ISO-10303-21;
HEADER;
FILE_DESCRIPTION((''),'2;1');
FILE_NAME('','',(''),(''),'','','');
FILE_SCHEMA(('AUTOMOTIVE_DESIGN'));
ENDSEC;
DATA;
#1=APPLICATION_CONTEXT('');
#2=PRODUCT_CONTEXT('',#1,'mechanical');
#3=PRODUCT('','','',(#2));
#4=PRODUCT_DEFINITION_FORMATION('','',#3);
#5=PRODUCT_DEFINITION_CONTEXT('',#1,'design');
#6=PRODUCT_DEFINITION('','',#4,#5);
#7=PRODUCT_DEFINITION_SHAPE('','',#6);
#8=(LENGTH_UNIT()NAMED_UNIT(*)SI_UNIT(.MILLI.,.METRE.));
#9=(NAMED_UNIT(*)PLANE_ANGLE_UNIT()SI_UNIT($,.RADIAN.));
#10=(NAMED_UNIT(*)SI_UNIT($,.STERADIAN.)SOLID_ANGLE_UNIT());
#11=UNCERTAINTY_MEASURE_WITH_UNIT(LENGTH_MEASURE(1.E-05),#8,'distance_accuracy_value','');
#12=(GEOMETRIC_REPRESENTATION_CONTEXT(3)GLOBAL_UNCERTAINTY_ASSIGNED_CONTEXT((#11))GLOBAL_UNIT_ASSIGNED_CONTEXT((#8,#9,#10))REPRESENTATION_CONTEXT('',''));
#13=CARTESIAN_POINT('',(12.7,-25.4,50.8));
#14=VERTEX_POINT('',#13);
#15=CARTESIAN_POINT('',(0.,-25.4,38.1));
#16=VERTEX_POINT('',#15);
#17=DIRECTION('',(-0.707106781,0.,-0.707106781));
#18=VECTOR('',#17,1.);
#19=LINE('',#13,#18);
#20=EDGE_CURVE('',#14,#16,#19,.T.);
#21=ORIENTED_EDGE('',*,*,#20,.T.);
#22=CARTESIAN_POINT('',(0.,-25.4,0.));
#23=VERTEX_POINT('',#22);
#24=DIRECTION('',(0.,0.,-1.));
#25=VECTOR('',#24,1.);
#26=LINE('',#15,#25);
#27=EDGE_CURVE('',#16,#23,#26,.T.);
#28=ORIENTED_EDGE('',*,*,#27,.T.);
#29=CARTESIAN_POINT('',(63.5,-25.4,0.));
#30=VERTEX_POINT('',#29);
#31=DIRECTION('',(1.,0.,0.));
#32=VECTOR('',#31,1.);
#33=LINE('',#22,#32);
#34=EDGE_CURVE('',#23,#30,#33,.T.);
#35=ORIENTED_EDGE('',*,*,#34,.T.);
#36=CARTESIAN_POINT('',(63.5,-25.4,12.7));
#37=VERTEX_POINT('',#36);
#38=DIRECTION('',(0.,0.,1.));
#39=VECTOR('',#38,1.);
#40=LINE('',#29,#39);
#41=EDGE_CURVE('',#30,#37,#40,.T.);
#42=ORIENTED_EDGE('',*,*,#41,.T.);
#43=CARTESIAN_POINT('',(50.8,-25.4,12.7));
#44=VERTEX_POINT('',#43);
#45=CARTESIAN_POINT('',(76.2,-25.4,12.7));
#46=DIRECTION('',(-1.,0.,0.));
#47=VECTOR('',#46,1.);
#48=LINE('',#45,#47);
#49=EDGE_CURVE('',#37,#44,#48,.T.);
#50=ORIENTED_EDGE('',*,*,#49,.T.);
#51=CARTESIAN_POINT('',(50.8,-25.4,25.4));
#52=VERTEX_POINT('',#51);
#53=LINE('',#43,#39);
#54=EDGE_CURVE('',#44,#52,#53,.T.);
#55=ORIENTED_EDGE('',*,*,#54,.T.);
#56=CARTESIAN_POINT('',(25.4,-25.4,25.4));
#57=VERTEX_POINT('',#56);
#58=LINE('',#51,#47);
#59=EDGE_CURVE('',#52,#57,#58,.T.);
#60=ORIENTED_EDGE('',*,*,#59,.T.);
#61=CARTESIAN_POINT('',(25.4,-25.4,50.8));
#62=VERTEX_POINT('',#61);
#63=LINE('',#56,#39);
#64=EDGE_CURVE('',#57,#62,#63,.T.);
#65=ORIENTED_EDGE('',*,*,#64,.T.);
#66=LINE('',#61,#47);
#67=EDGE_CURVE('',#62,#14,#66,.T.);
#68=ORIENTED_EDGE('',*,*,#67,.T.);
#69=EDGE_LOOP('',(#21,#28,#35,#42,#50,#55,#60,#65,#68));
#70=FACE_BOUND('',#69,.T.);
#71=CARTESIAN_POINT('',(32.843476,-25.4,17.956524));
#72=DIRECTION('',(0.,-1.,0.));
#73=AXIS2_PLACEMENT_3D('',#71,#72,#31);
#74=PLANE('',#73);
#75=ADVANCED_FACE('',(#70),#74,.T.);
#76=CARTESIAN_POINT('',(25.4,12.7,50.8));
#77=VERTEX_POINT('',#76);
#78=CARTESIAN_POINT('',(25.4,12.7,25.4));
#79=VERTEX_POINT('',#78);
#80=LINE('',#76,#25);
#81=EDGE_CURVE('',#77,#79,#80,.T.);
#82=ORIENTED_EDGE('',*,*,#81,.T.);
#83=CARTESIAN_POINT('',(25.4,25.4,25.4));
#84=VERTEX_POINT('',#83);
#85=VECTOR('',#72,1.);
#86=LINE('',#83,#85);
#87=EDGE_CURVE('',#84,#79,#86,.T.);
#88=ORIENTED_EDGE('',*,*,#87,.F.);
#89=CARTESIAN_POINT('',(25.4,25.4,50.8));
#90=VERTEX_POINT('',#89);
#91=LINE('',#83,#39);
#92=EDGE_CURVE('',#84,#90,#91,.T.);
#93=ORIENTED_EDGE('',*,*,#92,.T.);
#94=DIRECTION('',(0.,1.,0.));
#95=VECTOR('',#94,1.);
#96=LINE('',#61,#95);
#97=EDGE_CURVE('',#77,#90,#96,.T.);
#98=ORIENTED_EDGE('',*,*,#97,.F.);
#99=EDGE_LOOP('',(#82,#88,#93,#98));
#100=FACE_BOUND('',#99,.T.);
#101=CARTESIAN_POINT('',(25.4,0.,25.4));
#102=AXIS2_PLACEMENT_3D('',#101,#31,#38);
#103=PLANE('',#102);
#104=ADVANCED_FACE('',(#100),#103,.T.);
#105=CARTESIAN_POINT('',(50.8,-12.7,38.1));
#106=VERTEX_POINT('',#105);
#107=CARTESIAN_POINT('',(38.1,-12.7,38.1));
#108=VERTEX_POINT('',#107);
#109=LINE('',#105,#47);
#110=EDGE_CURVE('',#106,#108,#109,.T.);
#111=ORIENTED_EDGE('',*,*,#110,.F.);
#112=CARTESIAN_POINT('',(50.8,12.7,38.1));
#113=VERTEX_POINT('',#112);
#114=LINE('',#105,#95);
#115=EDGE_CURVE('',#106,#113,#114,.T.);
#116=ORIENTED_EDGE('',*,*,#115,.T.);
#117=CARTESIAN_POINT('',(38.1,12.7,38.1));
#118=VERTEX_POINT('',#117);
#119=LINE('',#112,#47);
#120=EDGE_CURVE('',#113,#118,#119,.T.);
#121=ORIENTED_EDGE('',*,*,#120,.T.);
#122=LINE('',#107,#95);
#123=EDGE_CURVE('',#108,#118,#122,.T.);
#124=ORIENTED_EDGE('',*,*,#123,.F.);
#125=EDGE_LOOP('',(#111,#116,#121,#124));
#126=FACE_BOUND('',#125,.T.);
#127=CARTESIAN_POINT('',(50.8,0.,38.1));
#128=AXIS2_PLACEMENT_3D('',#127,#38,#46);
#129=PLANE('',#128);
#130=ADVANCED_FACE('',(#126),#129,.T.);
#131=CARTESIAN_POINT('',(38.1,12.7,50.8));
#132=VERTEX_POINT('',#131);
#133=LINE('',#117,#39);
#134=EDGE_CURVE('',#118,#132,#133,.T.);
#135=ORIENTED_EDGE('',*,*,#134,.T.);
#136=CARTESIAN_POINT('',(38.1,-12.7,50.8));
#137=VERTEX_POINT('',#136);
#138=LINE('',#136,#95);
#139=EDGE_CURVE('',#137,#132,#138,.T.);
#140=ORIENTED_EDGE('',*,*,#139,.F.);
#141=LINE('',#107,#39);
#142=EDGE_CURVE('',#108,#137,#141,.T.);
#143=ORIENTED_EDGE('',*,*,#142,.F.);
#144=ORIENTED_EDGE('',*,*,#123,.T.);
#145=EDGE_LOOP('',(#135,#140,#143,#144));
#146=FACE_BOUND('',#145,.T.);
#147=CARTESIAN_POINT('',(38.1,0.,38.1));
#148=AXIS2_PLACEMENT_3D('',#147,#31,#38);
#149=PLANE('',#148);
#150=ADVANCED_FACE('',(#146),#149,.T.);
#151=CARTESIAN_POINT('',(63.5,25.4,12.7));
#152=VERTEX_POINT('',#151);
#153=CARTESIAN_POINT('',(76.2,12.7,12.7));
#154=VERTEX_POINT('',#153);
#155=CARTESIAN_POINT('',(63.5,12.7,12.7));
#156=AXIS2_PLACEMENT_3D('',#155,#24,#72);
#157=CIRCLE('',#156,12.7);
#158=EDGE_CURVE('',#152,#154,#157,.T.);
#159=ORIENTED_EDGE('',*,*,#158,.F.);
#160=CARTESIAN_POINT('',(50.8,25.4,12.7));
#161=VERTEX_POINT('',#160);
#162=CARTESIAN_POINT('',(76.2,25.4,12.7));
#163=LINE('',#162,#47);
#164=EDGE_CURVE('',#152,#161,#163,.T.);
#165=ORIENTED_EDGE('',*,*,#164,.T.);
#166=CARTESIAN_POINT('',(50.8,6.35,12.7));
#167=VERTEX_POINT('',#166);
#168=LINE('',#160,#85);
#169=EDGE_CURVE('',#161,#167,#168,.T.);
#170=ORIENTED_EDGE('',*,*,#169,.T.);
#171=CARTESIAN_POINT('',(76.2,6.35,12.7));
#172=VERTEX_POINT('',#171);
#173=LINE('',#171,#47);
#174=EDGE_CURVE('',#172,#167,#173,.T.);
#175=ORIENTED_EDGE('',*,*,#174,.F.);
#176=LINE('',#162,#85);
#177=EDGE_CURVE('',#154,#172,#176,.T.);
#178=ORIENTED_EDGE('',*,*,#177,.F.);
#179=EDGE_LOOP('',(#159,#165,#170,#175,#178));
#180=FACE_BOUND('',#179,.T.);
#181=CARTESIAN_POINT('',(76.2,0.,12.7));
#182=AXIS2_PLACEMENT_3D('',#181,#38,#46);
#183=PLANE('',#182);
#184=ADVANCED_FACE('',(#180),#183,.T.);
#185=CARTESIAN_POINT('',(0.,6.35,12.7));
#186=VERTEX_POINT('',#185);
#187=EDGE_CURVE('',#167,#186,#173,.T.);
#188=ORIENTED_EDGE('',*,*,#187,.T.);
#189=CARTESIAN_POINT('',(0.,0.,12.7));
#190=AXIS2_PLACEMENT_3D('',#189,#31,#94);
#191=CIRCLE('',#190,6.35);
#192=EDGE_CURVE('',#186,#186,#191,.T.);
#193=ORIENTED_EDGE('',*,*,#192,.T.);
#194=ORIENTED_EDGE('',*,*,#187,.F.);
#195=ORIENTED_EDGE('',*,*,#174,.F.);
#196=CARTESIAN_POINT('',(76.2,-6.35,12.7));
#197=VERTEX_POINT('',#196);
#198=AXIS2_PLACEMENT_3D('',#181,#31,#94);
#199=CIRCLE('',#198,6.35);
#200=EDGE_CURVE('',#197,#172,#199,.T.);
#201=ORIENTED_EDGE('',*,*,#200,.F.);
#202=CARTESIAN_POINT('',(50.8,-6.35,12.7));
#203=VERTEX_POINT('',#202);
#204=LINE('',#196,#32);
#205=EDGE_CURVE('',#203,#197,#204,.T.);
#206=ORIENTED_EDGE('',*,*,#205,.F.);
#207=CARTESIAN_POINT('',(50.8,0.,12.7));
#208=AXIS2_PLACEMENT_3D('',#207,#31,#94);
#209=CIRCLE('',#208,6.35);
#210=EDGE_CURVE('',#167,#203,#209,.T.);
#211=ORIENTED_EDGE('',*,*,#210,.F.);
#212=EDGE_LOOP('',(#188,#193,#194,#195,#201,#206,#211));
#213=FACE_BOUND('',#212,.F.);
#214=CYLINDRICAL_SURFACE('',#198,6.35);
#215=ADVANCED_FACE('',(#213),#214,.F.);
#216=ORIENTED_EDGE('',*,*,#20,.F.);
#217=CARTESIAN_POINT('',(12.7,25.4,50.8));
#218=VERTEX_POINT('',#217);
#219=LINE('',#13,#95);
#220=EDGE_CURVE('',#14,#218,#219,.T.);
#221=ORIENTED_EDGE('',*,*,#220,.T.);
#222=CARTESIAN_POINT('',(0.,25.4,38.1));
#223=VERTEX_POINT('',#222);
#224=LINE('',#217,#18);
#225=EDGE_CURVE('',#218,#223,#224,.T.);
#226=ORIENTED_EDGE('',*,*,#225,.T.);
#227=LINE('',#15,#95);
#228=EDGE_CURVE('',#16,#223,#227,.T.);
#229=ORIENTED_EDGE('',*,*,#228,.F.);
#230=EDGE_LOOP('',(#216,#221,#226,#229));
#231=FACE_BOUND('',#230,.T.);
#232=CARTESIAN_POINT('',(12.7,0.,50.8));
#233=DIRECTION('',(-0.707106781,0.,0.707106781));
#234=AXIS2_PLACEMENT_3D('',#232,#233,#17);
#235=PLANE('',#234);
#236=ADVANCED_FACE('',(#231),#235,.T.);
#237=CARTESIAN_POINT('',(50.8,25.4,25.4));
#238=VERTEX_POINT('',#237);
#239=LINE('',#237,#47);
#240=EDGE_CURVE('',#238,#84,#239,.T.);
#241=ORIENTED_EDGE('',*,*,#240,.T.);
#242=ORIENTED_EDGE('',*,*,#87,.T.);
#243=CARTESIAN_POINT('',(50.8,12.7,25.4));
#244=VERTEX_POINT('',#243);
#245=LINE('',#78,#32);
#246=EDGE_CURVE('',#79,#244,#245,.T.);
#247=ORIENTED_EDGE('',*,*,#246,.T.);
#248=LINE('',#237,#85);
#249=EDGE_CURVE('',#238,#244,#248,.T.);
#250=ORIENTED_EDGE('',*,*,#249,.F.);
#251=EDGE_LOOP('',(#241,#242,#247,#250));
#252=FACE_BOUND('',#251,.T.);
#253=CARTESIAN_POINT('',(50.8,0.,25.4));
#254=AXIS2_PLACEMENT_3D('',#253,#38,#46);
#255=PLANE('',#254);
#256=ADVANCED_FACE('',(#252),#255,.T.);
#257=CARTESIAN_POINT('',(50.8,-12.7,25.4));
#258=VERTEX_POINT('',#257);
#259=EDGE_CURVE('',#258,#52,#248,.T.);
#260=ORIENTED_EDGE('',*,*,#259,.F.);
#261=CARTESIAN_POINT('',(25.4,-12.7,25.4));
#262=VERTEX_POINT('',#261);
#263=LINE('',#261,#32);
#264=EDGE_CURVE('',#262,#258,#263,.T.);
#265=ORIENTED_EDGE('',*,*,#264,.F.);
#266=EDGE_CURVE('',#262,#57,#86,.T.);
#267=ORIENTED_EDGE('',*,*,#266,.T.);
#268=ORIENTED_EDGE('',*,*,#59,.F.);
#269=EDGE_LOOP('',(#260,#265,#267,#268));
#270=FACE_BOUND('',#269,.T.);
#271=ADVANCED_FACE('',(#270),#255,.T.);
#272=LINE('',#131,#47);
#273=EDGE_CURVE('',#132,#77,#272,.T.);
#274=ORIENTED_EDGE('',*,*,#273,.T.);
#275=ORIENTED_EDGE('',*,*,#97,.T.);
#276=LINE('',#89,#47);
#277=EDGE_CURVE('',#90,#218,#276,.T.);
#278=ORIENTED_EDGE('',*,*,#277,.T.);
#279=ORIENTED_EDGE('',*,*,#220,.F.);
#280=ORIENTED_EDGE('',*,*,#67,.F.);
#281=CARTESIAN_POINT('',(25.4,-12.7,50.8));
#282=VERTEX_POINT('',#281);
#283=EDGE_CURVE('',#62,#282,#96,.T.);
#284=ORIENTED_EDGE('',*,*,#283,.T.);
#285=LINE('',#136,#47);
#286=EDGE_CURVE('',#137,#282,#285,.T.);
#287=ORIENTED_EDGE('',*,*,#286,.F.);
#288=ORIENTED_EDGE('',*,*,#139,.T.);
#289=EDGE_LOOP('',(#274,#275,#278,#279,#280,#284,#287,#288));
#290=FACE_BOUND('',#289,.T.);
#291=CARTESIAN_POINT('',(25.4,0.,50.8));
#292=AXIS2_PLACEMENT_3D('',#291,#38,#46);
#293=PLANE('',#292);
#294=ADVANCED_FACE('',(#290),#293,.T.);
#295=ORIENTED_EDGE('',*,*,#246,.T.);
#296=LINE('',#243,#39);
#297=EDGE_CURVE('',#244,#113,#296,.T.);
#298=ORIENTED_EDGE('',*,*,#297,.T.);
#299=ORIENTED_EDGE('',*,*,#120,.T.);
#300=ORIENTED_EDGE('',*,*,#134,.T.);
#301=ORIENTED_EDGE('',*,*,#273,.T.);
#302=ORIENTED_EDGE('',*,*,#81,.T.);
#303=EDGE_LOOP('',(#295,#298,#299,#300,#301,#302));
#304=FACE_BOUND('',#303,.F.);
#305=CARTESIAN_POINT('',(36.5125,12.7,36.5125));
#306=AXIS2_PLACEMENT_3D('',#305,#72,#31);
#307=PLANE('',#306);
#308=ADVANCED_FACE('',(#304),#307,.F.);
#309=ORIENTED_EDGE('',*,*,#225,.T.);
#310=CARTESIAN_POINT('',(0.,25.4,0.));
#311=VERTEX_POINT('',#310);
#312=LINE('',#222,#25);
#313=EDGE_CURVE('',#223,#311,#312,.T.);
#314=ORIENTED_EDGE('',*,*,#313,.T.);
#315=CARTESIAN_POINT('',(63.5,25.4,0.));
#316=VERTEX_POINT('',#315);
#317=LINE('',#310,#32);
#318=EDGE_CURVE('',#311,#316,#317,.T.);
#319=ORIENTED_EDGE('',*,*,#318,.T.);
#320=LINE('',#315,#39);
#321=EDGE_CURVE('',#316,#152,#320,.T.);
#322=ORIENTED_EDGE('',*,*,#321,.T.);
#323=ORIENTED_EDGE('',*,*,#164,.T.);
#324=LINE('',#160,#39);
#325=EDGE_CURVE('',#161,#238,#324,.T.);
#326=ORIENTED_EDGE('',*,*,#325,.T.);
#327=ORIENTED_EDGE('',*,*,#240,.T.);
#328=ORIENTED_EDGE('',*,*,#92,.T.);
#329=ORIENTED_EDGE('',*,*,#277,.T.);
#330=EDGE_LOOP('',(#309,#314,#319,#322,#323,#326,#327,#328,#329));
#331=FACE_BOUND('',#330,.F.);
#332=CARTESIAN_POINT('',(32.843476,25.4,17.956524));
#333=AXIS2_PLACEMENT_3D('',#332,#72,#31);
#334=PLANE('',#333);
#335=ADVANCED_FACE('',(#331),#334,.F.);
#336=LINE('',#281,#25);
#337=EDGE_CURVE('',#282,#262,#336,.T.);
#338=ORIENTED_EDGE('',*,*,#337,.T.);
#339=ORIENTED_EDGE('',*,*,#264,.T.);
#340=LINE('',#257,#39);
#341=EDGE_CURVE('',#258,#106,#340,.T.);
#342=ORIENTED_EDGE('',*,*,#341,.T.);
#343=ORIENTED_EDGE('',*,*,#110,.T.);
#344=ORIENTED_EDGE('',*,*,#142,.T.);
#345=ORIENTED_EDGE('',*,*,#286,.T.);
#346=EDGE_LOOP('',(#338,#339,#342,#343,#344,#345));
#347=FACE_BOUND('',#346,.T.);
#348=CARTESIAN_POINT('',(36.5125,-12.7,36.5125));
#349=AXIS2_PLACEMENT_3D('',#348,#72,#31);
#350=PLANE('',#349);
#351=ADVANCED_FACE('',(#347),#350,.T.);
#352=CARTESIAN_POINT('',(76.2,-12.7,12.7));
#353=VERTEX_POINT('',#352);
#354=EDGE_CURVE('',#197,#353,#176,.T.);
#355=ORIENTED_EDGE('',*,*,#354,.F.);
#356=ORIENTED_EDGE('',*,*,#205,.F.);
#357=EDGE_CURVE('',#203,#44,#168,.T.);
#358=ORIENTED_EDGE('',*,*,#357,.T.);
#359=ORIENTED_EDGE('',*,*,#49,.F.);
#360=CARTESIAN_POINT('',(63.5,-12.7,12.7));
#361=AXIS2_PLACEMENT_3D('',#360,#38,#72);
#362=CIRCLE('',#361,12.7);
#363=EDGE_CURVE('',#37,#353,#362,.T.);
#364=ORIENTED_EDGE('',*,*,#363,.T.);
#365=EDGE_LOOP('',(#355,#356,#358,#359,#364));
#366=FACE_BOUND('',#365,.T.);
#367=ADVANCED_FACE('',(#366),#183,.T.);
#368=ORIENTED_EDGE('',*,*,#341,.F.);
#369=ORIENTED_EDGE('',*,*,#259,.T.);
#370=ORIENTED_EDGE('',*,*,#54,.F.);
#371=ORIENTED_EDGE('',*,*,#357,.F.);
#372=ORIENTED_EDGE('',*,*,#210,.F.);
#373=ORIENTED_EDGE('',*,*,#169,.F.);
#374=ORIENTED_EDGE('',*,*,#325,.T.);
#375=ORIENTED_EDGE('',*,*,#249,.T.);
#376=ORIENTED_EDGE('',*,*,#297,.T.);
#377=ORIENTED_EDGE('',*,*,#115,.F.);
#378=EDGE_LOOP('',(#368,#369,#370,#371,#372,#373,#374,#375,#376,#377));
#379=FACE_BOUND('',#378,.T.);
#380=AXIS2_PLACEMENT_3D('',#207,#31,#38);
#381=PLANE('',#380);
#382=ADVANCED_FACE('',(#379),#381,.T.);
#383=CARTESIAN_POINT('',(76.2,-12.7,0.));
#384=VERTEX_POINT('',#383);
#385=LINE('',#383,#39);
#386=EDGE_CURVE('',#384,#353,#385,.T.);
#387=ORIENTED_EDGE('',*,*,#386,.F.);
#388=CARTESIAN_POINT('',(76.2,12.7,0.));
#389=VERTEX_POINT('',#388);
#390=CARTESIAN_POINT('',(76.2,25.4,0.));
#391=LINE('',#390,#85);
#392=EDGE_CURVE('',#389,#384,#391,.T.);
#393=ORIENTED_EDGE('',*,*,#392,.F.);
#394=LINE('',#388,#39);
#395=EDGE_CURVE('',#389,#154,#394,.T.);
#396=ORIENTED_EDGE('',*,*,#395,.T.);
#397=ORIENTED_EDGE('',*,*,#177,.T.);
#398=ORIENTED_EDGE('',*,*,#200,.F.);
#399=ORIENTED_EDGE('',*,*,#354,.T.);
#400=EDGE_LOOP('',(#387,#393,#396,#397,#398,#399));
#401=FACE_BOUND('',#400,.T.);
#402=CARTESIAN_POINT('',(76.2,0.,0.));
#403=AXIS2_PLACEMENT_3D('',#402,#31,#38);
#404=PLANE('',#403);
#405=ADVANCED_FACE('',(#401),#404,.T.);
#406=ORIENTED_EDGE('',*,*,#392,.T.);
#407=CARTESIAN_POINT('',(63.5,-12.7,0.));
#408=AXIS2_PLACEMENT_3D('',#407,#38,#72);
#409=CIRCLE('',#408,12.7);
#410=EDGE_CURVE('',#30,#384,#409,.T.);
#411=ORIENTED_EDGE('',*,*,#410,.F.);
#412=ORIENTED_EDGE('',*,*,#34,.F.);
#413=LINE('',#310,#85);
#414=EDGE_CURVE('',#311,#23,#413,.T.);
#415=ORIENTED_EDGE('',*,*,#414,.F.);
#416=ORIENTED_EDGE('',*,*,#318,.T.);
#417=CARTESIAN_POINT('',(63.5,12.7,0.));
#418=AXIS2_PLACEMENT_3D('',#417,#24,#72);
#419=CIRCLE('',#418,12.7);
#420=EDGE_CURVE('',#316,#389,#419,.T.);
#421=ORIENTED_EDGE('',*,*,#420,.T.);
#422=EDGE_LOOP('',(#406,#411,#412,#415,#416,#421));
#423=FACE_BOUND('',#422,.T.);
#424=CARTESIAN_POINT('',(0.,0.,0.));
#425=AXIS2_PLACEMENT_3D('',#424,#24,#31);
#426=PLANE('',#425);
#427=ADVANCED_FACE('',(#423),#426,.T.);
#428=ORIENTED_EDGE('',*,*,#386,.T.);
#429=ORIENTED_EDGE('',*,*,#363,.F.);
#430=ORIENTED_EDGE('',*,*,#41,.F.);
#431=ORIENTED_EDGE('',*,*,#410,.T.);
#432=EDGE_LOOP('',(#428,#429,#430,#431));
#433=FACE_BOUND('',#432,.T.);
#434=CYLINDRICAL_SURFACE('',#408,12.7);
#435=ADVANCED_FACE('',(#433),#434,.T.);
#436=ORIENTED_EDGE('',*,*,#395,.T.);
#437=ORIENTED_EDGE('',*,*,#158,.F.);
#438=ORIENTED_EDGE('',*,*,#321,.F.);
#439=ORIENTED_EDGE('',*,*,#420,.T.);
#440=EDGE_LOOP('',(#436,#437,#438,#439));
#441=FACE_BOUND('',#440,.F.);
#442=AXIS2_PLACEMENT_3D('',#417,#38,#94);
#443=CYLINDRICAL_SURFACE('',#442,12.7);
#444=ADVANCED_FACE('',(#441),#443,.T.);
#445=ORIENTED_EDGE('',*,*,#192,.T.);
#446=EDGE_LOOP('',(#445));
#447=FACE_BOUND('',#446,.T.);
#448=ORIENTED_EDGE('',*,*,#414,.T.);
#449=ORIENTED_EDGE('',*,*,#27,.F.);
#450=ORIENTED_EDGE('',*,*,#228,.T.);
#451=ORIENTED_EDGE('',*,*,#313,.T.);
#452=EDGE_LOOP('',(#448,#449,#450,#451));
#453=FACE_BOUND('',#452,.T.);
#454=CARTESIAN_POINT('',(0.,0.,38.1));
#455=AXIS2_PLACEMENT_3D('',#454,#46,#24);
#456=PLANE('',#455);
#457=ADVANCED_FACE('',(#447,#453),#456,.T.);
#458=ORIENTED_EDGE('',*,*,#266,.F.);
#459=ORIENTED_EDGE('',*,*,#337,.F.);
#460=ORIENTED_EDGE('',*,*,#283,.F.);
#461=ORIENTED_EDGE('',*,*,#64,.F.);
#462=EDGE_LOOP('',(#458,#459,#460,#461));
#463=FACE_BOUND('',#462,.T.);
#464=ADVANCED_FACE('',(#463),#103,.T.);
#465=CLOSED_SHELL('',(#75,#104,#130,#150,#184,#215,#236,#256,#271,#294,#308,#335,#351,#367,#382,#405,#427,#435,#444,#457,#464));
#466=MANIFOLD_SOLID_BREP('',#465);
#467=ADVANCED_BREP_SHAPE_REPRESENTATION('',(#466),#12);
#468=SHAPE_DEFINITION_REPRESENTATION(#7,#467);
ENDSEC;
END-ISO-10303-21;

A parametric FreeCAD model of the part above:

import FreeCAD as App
import Part
import Sketcher
from FreeCAD import Vector
Q = App.Units.Quantity


def edges_at(feature, points):
    """Names of the edges that pass closest to the given points."""
    edges = feature.Shape.Edges
    near = lambda p: min(range(len(edges)), key=lambda i: edges[i].distToShape(Part.Vertex(*p))[0])
    return sorted({f"Edge{near(p) + 1}" for p in points})


def add_polygon(sketch, points):
    """Adds a closed chain of lines whose ends are joined by coincident constraints."""
    first, n = sketch.GeometryCount, len(points)
    for a, b in zip(points, points[1:] + points[:1]):
        sketch.addGeometry(Part.LineSegment(App.Vector(*a, 0), App.Vector(*b, 0)), False)
    for i in range(n):
        sketch.addConstraint(Sketcher.Constraint("Coincident", first + i, 2, first + (i + 1) % n, 1))

doc = App.newDocument("Part")
params = doc.addObject("Spreadsheet::Sheet", "Params")
for row, (alias, value) in enumerate([
    ("sketch1_width", "3 in"),
    ("sketch1_width2", "1 in"),
    ("sketch1_width3", "0.5 in"),
    ("sketch1_height", "1.5 in"),
    ("pad1_length", "2 in"),
    ("sketch2_width", "1 in"),
    ("pad2_length", "1 in"),
    ("fillet_radius", "0.5 in"),
    ("sketch3_diameter", "0.5 in"),
], start=1):
    params.set(f"A{row}", alias)
    params.set(f"B{row}", "=" + value)
    params.setAlias(f"B{row}", alias)

body = doc.addObject("PartDesign::Body", "Body")

# Sketch on XZ plane
sketch1 = body.newObject("Sketcher::SketchObject", "Sketch")
sketch1.AttachmentSupport = (doc.getObject("XZ_Plane"), [""])
sketch1.MapMode = "FlatFace"
add_polygon(sketch1, [(0, 38.1), (0, 0), (76.2, 0), (76.2, 12.7), (50.8, 12.7), (50.8, 25.4), (25.4, 25.4), (25.4, 50.8), (12.7, 50.8)])  # lines 0-8
sketch1.addConstraint([
    Sketcher.Constraint("Vertical", 0),
    Sketcher.Constraint("Horizontal", 1),
    Sketcher.Constraint("Vertical", 2),
    Sketcher.Constraint("Horizontal", 3),
    Sketcher.Constraint("Vertical", 4),
    Sketcher.Constraint("Horizontal", 5),
    Sketcher.Constraint("Vertical", 6),
    Sketcher.Constraint("Horizontal", 7),
    Sketcher.Constraint("Coincident", 0, 2, -1, 1),
    Sketcher.Constraint("Equal", 3, 5),
    Sketcher.Constraint("Equal", 7, 2),
    Sketcher.Constraint("Equal", 2, 4),
    Sketcher.Constraint("Equal", 5, 6),
    Sketcher.Constraint("DistanceX", 1, 1, 1, 2, Q("3 in")),
    Sketcher.Constraint("DistanceX", 3, 2, 3, 1, Q("1 in")),
    Sketcher.Constraint("DistanceX", 7, 2, 7, 1, Q("0.5 in")),
    Sketcher.Constraint("DistanceY", 0, 2, 0, 1, Q("1.5 in")),
])
sketch1.setExpression("Constraints[22]", "Params.sketch1_width")
sketch1.setExpression("Constraints[23]", "Params.sketch1_width2")
sketch1.setExpression("Constraints[24]", "Params.sketch1_width3")
sketch1.setExpression("Constraints[25]", "Params.sketch1_height")
pad1 = body.newObject("PartDesign::Pad", "Pad")
pad1.Profile = sketch1
pad1.setExpression("Length", "Params.pad1_length")
pad1.Midplane = True

# Sketch on XZ plane
sketch2 = body.newObject("Sketcher::SketchObject", "Sketch001")
sketch2.AttachmentSupport = (doc.getObject("XZ_Plane"), [""])
sketch2.MapMode = "FlatFace"
add_polygon(sketch2, [(38.1, 50.8), (25.4, 50.8), (25.4, 25.4), (50.8, 25.4), (50.8, 38.1), (38.1, 38.1)])  # lines 0-5
sketch2.addConstraint([
    Sketcher.Constraint("Horizontal", 0),
    Sketcher.Constraint("Vertical", 1),
    Sketcher.Constraint("Horizontal", 2),
    Sketcher.Constraint("Vertical", 3),
    Sketcher.Constraint("Horizontal", 4),
    Sketcher.Constraint("Vertical", 5),
    Sketcher.Constraint("Equal", 0, 4),
    Sketcher.Constraint("Equal", 2, 1),
    Sketcher.Constraint("Equal", 4, 3),
    Sketcher.Constraint("DistanceX", 2, 1, 2, 2, Q("1 in")),
    Sketcher.Constraint("DistanceX", -1, 1, 0, 2, Q("1 in")),
    Sketcher.Constraint("DistanceY", -1, 1, 0, 2, Q("2 in")),
])
sketch2.setExpression("Constraints[15]", "Params.sketch2_width")
pad2 = body.newObject("PartDesign::Pad", "Pad001")
pad2.Profile = sketch2
pad2.setExpression("Length", "Params.pad2_length")
pad2.Midplane = True
doc.recompute()

fillet = body.newObject("PartDesign::Fillet", "Fillet")
fillet.Base = (pad2, edges_at(pad2, [(76.2, -25.4, 6.35), (76.2, 25.4, 6.35)]))
fillet.setExpression("Radius", "Params.fillet_radius")

# Sketch on YZ plane
sketch3 = body.newObject("Sketcher::SketchObject", "Sketch002")
sketch3.AttachmentSupport = (doc.getObject("YZ_Plane"), [""])
sketch3.MapMode = "FlatFace"
sketch3.AttachmentOffset = App.Placement(Vector(0, 0, 3 * 25.4), App.Rotation())
sketch3.addGeometry(Part.Circle(Vector(0, 12.7, 0), Vector(0, 0, 1), 6.35), False)
sketch3.addConstraint([
    Sketcher.Constraint("PointOnObject", 0, 3, -2),
    Sketcher.Constraint("Diameter", 0, Q("0.5 in")),
    Sketcher.Constraint("DistanceY", -1, 1, 0, 3, Q("0.5 in")),
])
sketch3.setExpression("Constraints[1]", "Params.sketch3_diameter")
pocket1 = body.newObject("PartDesign::Pocket", "Pocket")
pocket1.Profile = sketch3
pocket1.Type = "ThroughAll"

doc.recompute()
